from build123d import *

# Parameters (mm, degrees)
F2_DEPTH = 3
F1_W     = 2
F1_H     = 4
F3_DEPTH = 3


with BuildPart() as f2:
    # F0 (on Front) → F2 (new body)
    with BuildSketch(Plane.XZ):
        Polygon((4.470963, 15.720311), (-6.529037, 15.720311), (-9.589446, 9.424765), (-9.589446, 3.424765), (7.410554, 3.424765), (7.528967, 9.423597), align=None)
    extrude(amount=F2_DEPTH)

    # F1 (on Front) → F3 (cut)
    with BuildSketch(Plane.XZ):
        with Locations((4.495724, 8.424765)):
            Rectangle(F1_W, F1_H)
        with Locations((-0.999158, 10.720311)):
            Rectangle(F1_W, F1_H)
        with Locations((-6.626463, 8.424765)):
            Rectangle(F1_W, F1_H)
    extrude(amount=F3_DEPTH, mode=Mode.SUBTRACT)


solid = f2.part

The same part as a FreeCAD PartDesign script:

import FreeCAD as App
import Part
import Sketcher
from FreeCAD import Vector
Q = App.Units.Quantity


def add_polygon(sketch, points):
    """Adds a closed chain of lines whose ends are joined by coincident constraints."""
    first, n = sketch.GeometryCount, len(points)
    for a, b in zip(points, points[1:] + points[:1]):
        sketch.addGeometry(Part.LineSegment(App.Vector(*a, 0), App.Vector(*b, 0)), False)
    for i in range(n):
        sketch.addConstraint(Sketcher.Constraint("Coincident", first + i, 2, first + (i + 1) % n, 1))

doc = App.newDocument("Part")
params = doc.addObject("Spreadsheet::Sheet", "Params")
for row, (alias, value) in enumerate([
    ("sketch1_width", "11 mm"),
    ("sketch1_width2", "17 mm"),
    ("sketch1_height", "6 mm"),
    ("sketch1_length", "7 mm"),
    ("sketch1_length2", "6.000001 mm"),
    ("pad1_length", "3 mm"),
    ("sketch2_width", "2 mm"),
    ("sketch2_height", "4 mm"),
    ("pocket1_length", "3 mm"),
], start=1):
    params.set(f"A{row}", alias)
    params.set(f"B{row}", "=" + value)
    params.setAlias(f"B{row}", alias)

body = doc.addObject("PartDesign::Body", "Body")

# Sketch on XZ plane
sketch1 = doc.addObject("Sketcher::SketchObject", "Sketch")
body.addObject(sketch1)
sketch1.AttachmentSupport = (doc.XZ_Plane, [""])
sketch1.MapMode = "FlatFace"
add_polygon(sketch1, [(4, 16), (-7, 16), (-10, 9), (-10, 3), (7, 3), (8, 9)])  # lines 0-5
sketch1.addConstraint(Sketcher.Constraint("Horizontal", 0))
sketch1.addConstraint(Sketcher.Constraint("Vertical", 2))
sketch1.addConstraint(Sketcher.Constraint("Horizontal", 3))
sketch1.addConstraint(Sketcher.Constraint("Equal", 1, 5))
sketch1.addConstraint(Sketcher.Constraint("DistanceX", 0, 2, 0, 1, Q("11 mm")))
sketch1.addConstraint(Sketcher.Constraint("DistanceX", 3, 1, 3, 2, Q("17 mm")))
sketch1.addConstraint(Sketcher.Constraint("DistanceY", 2, 2, 2, 1, Q("6 mm")))
sketch1.addConstraint(Sketcher.Constraint("Distance", 1, Q("7 mm")))
sketch1.addConstraint(Sketcher.Constraint("Distance", 4, Q("6.000001 mm")))
sketch1.addConstraint(Sketcher.Constraint("DistanceY", -1, 1, 0, 2, Q("15.720311 mm")))
sketch1.addConstraint(Sketcher.Constraint("DistanceX", 1, 2, 0, 2, Q("3.060409 mm")))
sketch1.addConstraint(Sketcher.Constraint("DistanceX", 0, 2, -1, 1, Q("6.529037 mm")))
sketch1.setExpression("Constraints[10]", "Params.sketch1_width")
sketch1.setExpression("Constraints[11]", "Params.sketch1_width2")
sketch1.setExpression("Constraints[12]", "Params.sketch1_height")
sketch1.setExpression("Constraints[13]", "Params.sketch1_length")
sketch1.setExpression("Constraints[14]", "Params.sketch1_length2")
pad1 = doc.addObject("PartDesign::Pad", "Pad")
body.addObject(pad1)
pad1.Profile = sketch1
pad1.setExpression("Length", "Params.pad1_length")

# Sketch on XZ plane
sketch2 = doc.addObject("Sketcher::SketchObject", "Sketch001")
body.addObject(sketch2)
sketch2.AttachmentSupport = (doc.XZ_Plane, [""])
sketch2.MapMode = "FlatFace"
add_polygon(sketch2, [(3.5, 10.4), (3.5, 6.4), (5.5, 6.4), (5.5, 10.4)])  # lines 0-3
add_polygon(sketch2, [(-2, 12.7), (-2, 8.7), (0, 8.7), (0, 12.7)])  # lines 4-7
add_polygon(sketch2, [(-7.6, 10.4), (-7.6, 6.4), (-5.6, 6.4), (-5.6, 10.4)])  # lines 8-11
sketch2.addConstraint(Sketcher.Constraint("Vertical", 0))
sketch2.addConstraint(Sketcher.Constraint("Horizontal", 1))
sketch2.addConstraint(Sketcher.Constraint("Vertical", 2))
sketch2.addConstraint(Sketcher.Constraint("Horizontal", 3))
sketch2.addConstraint(Sketcher.Constraint("Vertical", 4))
sketch2.addConstraint(Sketcher.Constraint("Horizontal", 5))
sketch2.addConstraint(Sketcher.Constraint("Vertical", 6))
sketch2.addConstraint(Sketcher.Constraint("Horizontal", 7))
sketch2.addConstraint(Sketcher.Constraint("Vertical", 8))
sketch2.addConstraint(Sketcher.Constraint("Horizontal", 9))
sketch2.addConstraint(Sketcher.Constraint("Vertical", 10))
sketch2.addConstraint(Sketcher.Constraint("Horizontal", 11))
sketch2.addConstraint(Sketcher.Constraint("Horizontal", 1, 2, 8, 2))
sketch2.addConstraint(Sketcher.Constraint("Horizontal", 3, 2, 10, 2))
sketch2.addConstraint(Sketcher.Constraint("Equal", 3, 5))
sketch2.addConstraint(Sketcher.Constraint("Equal", 7, 9))
sketch2.addConstraint(Sketcher.Constraint("Equal", 2, 4))
sketch2.addConstraint(Sketcher.Constraint("DistanceX", 1, 1, 1, 2, Q("2 mm")))
sketch2.addConstraint(Sketcher.Constraint("DistanceY", 0, 2, 0, 1, Q("4 mm")))
sketch2.addConstraint(Sketcher.Constraint("DistanceY", -1, 1, 4, 2, Q("8.720311 mm")))
sketch2.addConstraint(Sketcher.Constraint("DistanceX", -1, 1, 5, 2, Q("0.000842 mm")))
sketch2.addConstraint(Sketcher.Constraint("DistanceX", 5, 2, 3, 2, Q("3.494882 mm")))
sketch2.addConstraint(Sketcher.Constraint("DistanceY", -1, 1, 0, 2, Q("6.424765 mm")))
sketch2.addConstraint(Sketcher.Constraint("DistanceX", 8, 2, -1, 1, Q("7.626463 mm")))
sketch2.setExpression("Constraints[29]", "Params.sketch2_width")
sketch2.setExpression("Constraints[30]", "Params.sketch2_height")
pocket1 = doc.addObject("PartDesign::Pocket", "Pocket")
body.addObject(pocket1)
pocket1.Profile = sketch2
pocket1.setExpression("Length", "Params.pocket1_length")
pocket1.Reversed = True

doc.recompute()
